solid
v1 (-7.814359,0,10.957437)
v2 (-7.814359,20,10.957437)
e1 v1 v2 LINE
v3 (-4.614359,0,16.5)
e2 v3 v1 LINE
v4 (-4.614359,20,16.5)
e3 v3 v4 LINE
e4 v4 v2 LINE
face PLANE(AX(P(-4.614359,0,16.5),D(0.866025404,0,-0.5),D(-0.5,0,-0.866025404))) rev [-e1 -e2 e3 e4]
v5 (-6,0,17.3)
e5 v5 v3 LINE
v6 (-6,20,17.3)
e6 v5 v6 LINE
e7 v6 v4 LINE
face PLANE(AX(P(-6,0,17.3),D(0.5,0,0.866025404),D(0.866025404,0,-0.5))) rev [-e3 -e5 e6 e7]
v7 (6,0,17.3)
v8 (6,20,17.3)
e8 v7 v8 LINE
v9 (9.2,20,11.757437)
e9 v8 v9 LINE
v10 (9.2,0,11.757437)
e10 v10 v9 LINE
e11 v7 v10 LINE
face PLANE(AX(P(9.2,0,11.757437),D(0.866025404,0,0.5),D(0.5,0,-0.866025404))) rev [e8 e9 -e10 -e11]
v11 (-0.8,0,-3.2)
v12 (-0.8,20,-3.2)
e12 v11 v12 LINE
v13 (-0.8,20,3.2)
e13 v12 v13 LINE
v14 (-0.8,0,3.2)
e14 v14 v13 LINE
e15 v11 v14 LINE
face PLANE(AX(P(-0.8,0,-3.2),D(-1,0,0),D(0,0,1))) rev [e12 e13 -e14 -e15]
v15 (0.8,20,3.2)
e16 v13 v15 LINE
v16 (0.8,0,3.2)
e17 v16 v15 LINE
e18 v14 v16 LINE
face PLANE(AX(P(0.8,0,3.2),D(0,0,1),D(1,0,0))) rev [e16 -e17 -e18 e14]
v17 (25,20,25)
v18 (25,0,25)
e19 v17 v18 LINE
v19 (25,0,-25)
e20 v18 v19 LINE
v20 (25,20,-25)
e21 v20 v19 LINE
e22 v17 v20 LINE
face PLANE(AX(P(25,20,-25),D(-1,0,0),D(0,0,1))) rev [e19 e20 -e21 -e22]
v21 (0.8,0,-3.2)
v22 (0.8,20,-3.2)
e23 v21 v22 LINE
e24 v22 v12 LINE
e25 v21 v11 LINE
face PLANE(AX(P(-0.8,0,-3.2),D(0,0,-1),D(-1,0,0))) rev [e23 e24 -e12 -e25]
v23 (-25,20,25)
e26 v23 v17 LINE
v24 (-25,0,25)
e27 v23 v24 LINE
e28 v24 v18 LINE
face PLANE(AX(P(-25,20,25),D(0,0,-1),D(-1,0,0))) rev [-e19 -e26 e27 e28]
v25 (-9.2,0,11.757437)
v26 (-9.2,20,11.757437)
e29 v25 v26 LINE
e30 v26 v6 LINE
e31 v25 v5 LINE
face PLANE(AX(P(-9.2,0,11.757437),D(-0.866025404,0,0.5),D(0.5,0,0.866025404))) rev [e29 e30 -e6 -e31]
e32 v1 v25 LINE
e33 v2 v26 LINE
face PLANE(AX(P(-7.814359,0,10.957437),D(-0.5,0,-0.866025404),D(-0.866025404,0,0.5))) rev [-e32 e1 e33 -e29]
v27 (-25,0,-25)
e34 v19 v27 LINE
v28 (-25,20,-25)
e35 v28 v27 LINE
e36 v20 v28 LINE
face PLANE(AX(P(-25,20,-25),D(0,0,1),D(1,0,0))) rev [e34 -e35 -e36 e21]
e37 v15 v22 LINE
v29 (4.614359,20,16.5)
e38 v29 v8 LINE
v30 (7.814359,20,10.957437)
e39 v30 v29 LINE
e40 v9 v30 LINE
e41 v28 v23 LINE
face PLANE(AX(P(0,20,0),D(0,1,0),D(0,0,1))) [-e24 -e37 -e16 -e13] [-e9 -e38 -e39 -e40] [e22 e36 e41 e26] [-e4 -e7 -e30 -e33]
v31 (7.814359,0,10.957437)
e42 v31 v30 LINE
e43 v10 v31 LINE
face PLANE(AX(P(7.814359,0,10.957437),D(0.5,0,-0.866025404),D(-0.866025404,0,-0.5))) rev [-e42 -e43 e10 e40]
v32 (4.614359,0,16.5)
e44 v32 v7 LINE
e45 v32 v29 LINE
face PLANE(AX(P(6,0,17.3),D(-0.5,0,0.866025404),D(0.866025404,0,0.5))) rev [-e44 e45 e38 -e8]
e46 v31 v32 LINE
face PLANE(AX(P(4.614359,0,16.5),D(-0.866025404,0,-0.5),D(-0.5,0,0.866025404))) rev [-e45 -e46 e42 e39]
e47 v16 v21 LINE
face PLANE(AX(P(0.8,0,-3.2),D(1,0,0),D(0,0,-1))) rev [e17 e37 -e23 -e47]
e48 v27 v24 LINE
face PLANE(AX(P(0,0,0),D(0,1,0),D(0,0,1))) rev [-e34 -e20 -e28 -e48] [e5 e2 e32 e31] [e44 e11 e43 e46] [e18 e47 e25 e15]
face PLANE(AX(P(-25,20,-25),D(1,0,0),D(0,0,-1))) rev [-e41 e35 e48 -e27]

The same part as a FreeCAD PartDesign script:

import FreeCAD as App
import Part
import Sketcher
from FreeCAD import Vector
Q = App.Units.Quantity

doc = App.newDocument("Part")
params = doc.addObject("Spreadsheet::Sheet", "Params")
for row, (alias, value) in enumerate([
    ("sketch1_width", "50 mm"),
    ("pad1_length", "20 mm"),
    ("sketch2_width", "1.6 mm"),
    ("sketch2_height", "6.4 mm"),
    ("sketch2_length", "1.6 mm"),
    ("pocket1_length", "20 mm"),
], start=1):
    params.set(f"A{row}", alias)
    params.set(f"B{row}", "=" + value)
    params.setAlias(f"B{row}", alias)

body = doc.addObject("PartDesign::Body", "Body")

sketch1 = doc.addObject("Sketcher::SketchObject", "Sketch")
body.addObject(sketch1)
sketch1.AttachmentSupport = (doc.XZ_Plane, [""])
sketch1.MapMode = "FlatFace"
sketch1.addGeometry([
    Part.LineSegment(Vector(-25, -25, 0), Vector(-25, 25, 0)),
    Part.LineSegment(Vector(-25, 25, 0), Vector(25, 25, 0)),
    Part.LineSegment(Vector(25, 25, 0), Vector(25, -25, 0)),
    Part.LineSegment(Vector(25, -25, 0), Vector(-25, -25, 0)),
], False)
sketch1.addConstraint([
    Sketcher.Constraint("Coincident", 0, 2, 1, 1),
    Sketcher.Constraint("Coincident", 1, 2, 2, 1),
    Sketcher.Constraint("Coincident", 2, 2, 3, 1),
    Sketcher.Constraint("Coincident", 3, 2, 0, 1),
    Sketcher.Constraint("Vertical", 0),
    Sketcher.Constraint("Horizontal", 1),
    Sketcher.Constraint("Vertical", 2),
    Sketcher.Constraint("Horizontal", 3),
    Sketcher.Constraint("Symmetric", 0, 2, 2, 2, -1, 1),
    Sketcher.Constraint("Equal", 3, 0),
    Sketcher.Constraint("DistanceX", 1, 1, 1, 2, 50.0),
])
sketch1.setExpression("Constraints[10]", "Params.sketch1_width")
pad1 = doc.addObject("PartDesign::Pad", "Pad")
body.addObject(pad1)
pad1.Profile = sketch1
pad1.setExpression("Length", "Params.pad1_length")
pad1.Reversed = True

sketch2 = doc.addObject("Sketcher::SketchObject", "Sketch001")
body.addObject(sketch2)
sketch2.AttachmentSupport = (doc.XZ_Plane, [""])
sketch2.MapMode = "FlatFace"
sketch2.AttachmentOffset = App.Placement(Vector(0, 0, -20), App.Rotation())
sketch2.addGeometry([
    Part.LineSegment(Vector(0.8, -3.2, 0), Vector(-0.8, -3.2, 0)),
    Part.LineSegment(Vector(-0.8, -3.2, 0), Vector(-0.8, 3.2, 0)),
    Part.LineSegment(Vector(-0.8, 3.2, 0), Vector(0.8, 3.2, 0)),
    Part.LineSegment(Vector(0.8, 3.2, 0), Vector(0.8, -3.2, 0)),
    Part.LineSegment(Vector(7.8, 11, 0), Vector(4.6, 16.5, 0)),
    Part.LineSegment(Vector(4.6, 16.5, 0), Vector(6, 17.3, 0)),
    Part.LineSegment(Vector(6, 17.3, 0), Vector(9.2, 11.8, 0)),
    Part.LineSegment(Vector(9.2, 11.8, 0), Vector(7.8, 11, 0)),
    Part.LineSegment(Vector(-6, 17.3, 0), Vector(-4.6, 16.5, 0)),
    Part.LineSegment(Vector(-4.6, 16.5, 0), Vector(-7.8, 11, 0)),
    Part.LineSegment(Vector(-7.8, 11, 0), Vector(-9.2, 11.8, 0)),
    Part.LineSegment(Vector(-9.2, 11.8, 0), Vector(-6, 17.3, 0)),
], False)
sketch2.addConstraint([
    Sketcher.Constraint("Coincident", 0, 2, 1, 1),
    Sketcher.Constraint("Coincident", 1, 2, 2, 1),
    Sketcher.Constraint("Coincident", 2, 2, 3, 1),
    Sketcher.Constraint("Coincident", 3, 2, 0, 1),
    Sketcher.Constraint("Coincident", 4, 2, 5, 1),
    Sketcher.Constraint("Coincident", 5, 2, 6, 1),
    Sketcher.Constraint("Coincident", 6, 2, 7, 1),
    Sketcher.Constraint("Coincident", 7, 2, 4, 1),
    Sketcher.Constraint("Coincident", 8, 2, 9, 1),
    Sketcher.Constraint("Coincident", 9, 2, 10, 1),
    Sketcher.Constraint("Coincident", 10, 2, 11, 1),
    Sketcher.Constraint("Coincident", 11, 2, 8, 1),
    Sketcher.Constraint("Horizontal", 0),
    Sketcher.Constraint("Vertical", 1),
    Sketcher.Constraint("Horizontal", 2),
    Sketcher.Constraint("Vertical", 3),
    Sketcher.Constraint("Symmetric", 0, 2, 2, 2, -1, 1),
    Sketcher.Constraint("Symmetric", 4, 2, 8, 2, -2),
    Sketcher.Constraint("Symmetric", 7, 2, 9, 2, -2),
    Sketcher.Constraint("Symmetric", 6, 2, 10, 2, -2),
    Sketcher.Constraint("Symmetric", 5, 2, 11, 2, -2),
    Sketcher.Constraint("Perpendicular", 4, 5),
    Sketcher.Constraint("Perpendicular", 5, 6),
    Sketcher.Constraint("Perpendicular", 6, 7),
    Sketcher.Constraint("Angle", 4, Q("120 deg")),
    Sketcher.Constraint("DistanceX", 0, 2, 0, 1, 1.6),
    Sketcher.Constraint("DistanceY", 1, 1, 1, 2, 6.4),
    Sketcher.Constraint("DistanceX", -1, 1, 5, 2, 6.0),
    Sketcher.Constraint("DistanceX", 1, 2, 6, 2, 10.0),
    Sketcher.Constraint("Distance", 5, 1.6),
    Sketcher.Constraint("DistanceY", -1, 1, 4, 2, 16.5),
])
sketch2.setExpression("Constraints[25]", "Params.sketch2_width")
sketch2.setExpression("Constraints[26]", "Params.sketch2_height")
sketch2.setExpression("Constraints[29]", "Params.sketch2_length")
pocket1 = doc.addObject("PartDesign::Pocket", "Pocket")
body.addObject(pocket1)
pocket1.Profile = sketch2
pocket1.setExpression("Length", "Params.pocket1_length")
pocket1.Reversed = True

doc.recompute()
